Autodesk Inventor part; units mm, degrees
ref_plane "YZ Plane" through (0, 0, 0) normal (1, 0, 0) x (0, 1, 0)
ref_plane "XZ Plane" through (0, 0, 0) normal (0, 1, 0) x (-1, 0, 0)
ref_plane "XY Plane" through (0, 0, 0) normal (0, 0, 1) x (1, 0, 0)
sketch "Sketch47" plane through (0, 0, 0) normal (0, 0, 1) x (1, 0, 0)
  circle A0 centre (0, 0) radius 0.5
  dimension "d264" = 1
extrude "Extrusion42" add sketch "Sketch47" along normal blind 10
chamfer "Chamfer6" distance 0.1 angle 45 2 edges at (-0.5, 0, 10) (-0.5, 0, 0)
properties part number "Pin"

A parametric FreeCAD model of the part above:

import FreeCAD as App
import Part
import Sketcher

V = App.Vector


def edges_at(feature, points):
    """Names of the edges that pass closest to the given points."""
    edges = feature.Shape.Edges
    near = lambda p: min(range(len(edges)), key=lambda i: edges[i].distToShape(Part.Vertex(*p))[0])
    return sorted({f"Edge{near(p) + 1}" for p in points})

doc = App.newDocument("Part")
body = doc.addObject("PartDesign::Body", "Body")

sketch1 = body.newObject("Sketcher::SketchObject", "Sketch")
sketch1.AttachmentSupport = (doc.getObject("XY_Plane"), [""])
sketch1.MapMode = "FlatFace"
sketch1.addGeometry(Part.Circle(V(0, 0, 0), V(0, 0, 1), 0.5), False)
sketch1.addConstraint(Sketcher.Constraint("Coincident", 0, 3, -1, 1))
sketch1.addConstraint(Sketcher.Constraint("Diameter", 0, 1.0))
pad1 = body.newObject("PartDesign::Pad", "Pad")
pad1.Profile = sketch1
pad1.Length = 10
doc.recompute()

chamfer = body.newObject("PartDesign::Chamfer", "Chamfer")
chamfer.Base = (pad1, edges_at(pad1, [(-0.5, 0, 10), (-0.5, 0, 0)]))
chamfer.Size = 0.1

doc.recompute()
